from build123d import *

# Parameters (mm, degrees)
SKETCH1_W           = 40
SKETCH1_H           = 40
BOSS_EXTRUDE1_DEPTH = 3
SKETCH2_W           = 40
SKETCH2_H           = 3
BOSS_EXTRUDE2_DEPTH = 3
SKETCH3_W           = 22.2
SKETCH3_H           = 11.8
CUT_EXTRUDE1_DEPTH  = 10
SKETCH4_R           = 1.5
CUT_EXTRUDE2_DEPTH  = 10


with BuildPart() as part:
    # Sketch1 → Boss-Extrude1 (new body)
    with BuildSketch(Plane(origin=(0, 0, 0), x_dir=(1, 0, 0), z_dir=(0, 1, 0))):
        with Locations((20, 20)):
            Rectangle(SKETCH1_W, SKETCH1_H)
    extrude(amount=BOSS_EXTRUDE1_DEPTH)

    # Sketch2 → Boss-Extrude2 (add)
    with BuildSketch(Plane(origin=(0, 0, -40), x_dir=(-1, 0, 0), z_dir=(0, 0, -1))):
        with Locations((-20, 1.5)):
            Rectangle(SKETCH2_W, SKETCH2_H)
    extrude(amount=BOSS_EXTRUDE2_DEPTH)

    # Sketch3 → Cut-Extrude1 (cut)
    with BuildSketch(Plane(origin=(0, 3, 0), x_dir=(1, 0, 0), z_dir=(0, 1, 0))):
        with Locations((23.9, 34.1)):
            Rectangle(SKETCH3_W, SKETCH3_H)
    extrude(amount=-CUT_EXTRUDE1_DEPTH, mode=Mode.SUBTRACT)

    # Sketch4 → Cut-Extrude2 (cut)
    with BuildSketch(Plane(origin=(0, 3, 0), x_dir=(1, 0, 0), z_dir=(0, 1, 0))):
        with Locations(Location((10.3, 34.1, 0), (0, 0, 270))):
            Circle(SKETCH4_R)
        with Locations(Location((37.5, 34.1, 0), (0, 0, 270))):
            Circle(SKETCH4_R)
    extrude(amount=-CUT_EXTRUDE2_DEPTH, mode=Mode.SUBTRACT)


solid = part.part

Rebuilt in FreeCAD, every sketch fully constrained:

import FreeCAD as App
import Part
import Sketcher

V = App.Vector
Q = App.Units.Quantity


def add_polygon(sketch, points):
    """Adds a closed chain of lines whose ends are joined by coincident constraints."""
    first, n = sketch.GeometryCount, len(points)
    for a, b in zip(points, points[1:] + points[:1]):
        sketch.addGeometry(Part.LineSegment(App.Vector(*a, 0), App.Vector(*b, 0)), False)
    for i in range(n):
        sketch.addConstraint(Sketcher.Constraint("Coincident", first + i, 2, first + (i + 1) % n, 1))

doc = App.newDocument("Part")
body = doc.addObject("PartDesign::Body", "Body")

# Sketch on XZ plane
sketch1 = body.newObject("Sketcher::SketchObject", "Sketch")
sketch1.AttachmentSupport = (doc.getObject("XZ_Plane"), [""])
sketch1.MapMode = "FlatFace"
add_polygon(sketch1, [(0, -40), (0, 0), (40, 0), (40, -40)])  # lines 0-3
sketch1.addConstraint(Sketcher.Constraint("Vertical", 0))
sketch1.addConstraint(Sketcher.Constraint("Horizontal", 1))
sketch1.addConstraint(Sketcher.Constraint("Vertical", 2))
sketch1.addConstraint(Sketcher.Constraint("Horizontal", 3))
sketch1.addConstraint(Sketcher.Constraint("Coincident", 0, 2, -1, 1))
sketch1.addConstraint(Sketcher.Constraint("Equal", 3, 0))
sketch1.addConstraint(Sketcher.Constraint("DistanceX", 1, 1, 1, 2, Q("40 mm")))
pad1 = body.newObject("PartDesign::Pad", "Pad")
pad1.Profile = sketch1
pad1.Length = 3
pad1.Reversed = True

# Sketch on XY plane
sketch2 = body.newObject("Sketcher::SketchObject", "Sketch001")
sketch2.AttachmentSupport = (doc.getObject("XY_Plane"), [""])
sketch2.MapMode = "FlatFace"
sketch2.AttachmentOffset = App.Placement(V(0, 0, -40), App.Rotation())
add_polygon(sketch2, [(40, 3), (40, 0), (0, 0), (0, 3)])  # lines 0-3
sketch2.addConstraint(Sketcher.Constraint("Vertical", 0))
sketch2.addConstraint(Sketcher.Constraint("Horizontal", 1))
sketch2.addConstraint(Sketcher.Constraint("Vertical", 2))
sketch2.addConstraint(Sketcher.Constraint("Horizontal", 3))
sketch2.addConstraint(Sketcher.Constraint("Coincident", 1, 2, -1, 1))
sketch2.addConstraint(Sketcher.Constraint("DistanceX", 1, 2, 1, 1, Q("40 mm")))
sketch2.addConstraint(Sketcher.Constraint("DistanceY", 0, 2, 0, 1, Q("3 mm")))
pad2 = body.newObject("PartDesign::Pad", "Pad001")
pad2.Profile = sketch2
pad2.Length = 3
pad2.Reversed = True

# Sketch on XZ plane
sketch3 = body.newObject("Sketcher::SketchObject", "Sketch002")
sketch3.AttachmentSupport = (doc.getObject("XZ_Plane"), [""])
sketch3.MapMode = "FlatFace"
sketch3.AttachmentOffset = App.Placement(V(0, 0, -3), App.Rotation())
add_polygon(sketch3, [(12.8, -40), (12.8, -28.2), (35, -28.2), (35, -40)])  # lines 0-3
sketch3.addConstraint(Sketcher.Constraint("Vertical", 0))
sketch3.addConstraint(Sketcher.Constraint("Horizontal", 1))
sketch3.addConstraint(Sketcher.Constraint("Vertical", 2))
sketch3.addConstraint(Sketcher.Constraint("Horizontal", 3))
sketch3.addConstraint(Sketcher.Constraint("DistanceX", 1, 1, 1, 2, Q("22.2 mm")))
sketch3.addConstraint(Sketcher.Constraint("DistanceY", 0, 1, 0, 2, Q("11.8 mm")))
sketch3.addConstraint(Sketcher.Constraint("DistanceX", -1, 1, 1, 2, Q("35 mm")))
sketch3.addConstraint(Sketcher.Constraint("DistanceY", 2, 2, -1, 1, Q("40 mm")))
pocket1 = body.newObject("PartDesign::Pocket", "Pocket")
pocket1.Profile = sketch3
pocket1.Length = 10
pocket1.Reversed = True

# Sketch on XZ plane
sketch4 = body.newObject("Sketcher::SketchObject", "Sketch003")
sketch4.AttachmentSupport = (doc.getObject("XZ_Plane"), [""])
sketch4.MapMode = "FlatFace"
sketch4.AttachmentOffset = App.Placement(V(0, 0, -3), App.Rotation())
sketch4.addGeometry(Part.Circle(V(10.3, -34.1, 0), V(0, 0, 1), 1.5), False)
sketch4.addGeometry(Part.Circle(V(37.5, -34.1, 0), V(0, 0, 1), 1.5), False)
sketch4.addConstraint(Sketcher.Constraint("Equal", 0, 1))
sketch4.addConstraint(Sketcher.Constraint("Horizontal", 0, 3, 1, 3))
sketch4.addConstraint(Sketcher.Constraint("Diameter", 0, Q("3 mm")))
sketch4.addConstraint(Sketcher.Constraint("DistanceX", -1, 1, 0, 3, Q("10.3 mm")))
sketch4.addConstraint(Sketcher.Constraint("DistanceY", 0, 3, -1, 1, Q("34.1 mm")))
sketch4.addConstraint(Sketcher.Constraint("DistanceX", -1, 1, 1, 3, Q("37.5 mm")))
pocket2 = body.newObject("PartDesign::Pocket", "Pocket001")
pocket2.Profile = sketch4
pocket2.Length = 10
pocket2.Reversed = True

doc.recompute()
